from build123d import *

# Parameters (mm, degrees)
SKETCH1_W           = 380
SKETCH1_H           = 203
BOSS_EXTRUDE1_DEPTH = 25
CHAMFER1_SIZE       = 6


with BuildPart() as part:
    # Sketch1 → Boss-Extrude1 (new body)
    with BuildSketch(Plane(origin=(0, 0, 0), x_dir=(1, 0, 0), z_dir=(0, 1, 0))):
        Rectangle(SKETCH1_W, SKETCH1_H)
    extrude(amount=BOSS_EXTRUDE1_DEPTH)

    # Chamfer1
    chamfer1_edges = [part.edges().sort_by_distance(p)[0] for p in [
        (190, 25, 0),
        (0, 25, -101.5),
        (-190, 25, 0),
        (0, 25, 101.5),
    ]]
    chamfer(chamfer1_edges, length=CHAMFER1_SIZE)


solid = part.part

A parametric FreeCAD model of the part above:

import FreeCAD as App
import Part
import Sketcher


def edges_at(feature, points):
    """Names of the edges that pass closest to the given points."""
    edges = feature.Shape.Edges
    near = lambda p: min(range(len(edges)), key=lambda i: edges[i].distToShape(Part.Vertex(*p))[0])
    return sorted({f"Edge{near(p) + 1}" for p in points})

doc = App.newDocument("Part")
params = doc.addObject("Spreadsheet::Sheet", "Params")
for row, (alias, value) in enumerate([
    ("sketch1_width", "380 mm"),
    ("sketch1_height", "203 mm"),
    ("pad1_length", "25 mm"),
    ("chamfer_size", "6 mm"),
], start=1):
    params.set(f"A{row}", alias)
    params.set(f"B{row}", "=" + value)
    params.setAlias(f"B{row}", alias)

body = doc.addObject("PartDesign::Body", "Body")

# Sketch on XZ plane
sketch1 = body.newObject("Sketcher::SketchObject", "Sketch")
sketch1.AttachmentSupport = (doc.getObject("XZ_Plane"), [""])
sketch1.MapMode = "FlatFace"
sketch1.addGeometry([
    Part.LineSegment(App.Vector(-190, -102, 0), App.Vector(-190, 102, 0)),
    Part.LineSegment(App.Vector(-190, 102, 0), App.Vector(190, 102, 0)),
    Part.LineSegment(App.Vector(190, 102, 0), App.Vector(190, -102, 0)),
    Part.LineSegment(App.Vector(190, -102, 0), App.Vector(-190, -102, 0)),
], False)
sketch1.addConstraint([
    Sketcher.Constraint("Coincident", 0, 2, 1, 1),
    Sketcher.Constraint("Coincident", 1, 2, 2, 1),
    Sketcher.Constraint("Coincident", 2, 2, 3, 1),
    Sketcher.Constraint("Coincident", 3, 2, 0, 1),
    Sketcher.Constraint("Vertical", 0),
    Sketcher.Constraint("Horizontal", 1),
    Sketcher.Constraint("Vertical", 2),
    Sketcher.Constraint("Horizontal", 3),
    Sketcher.Constraint("Symmetric", 0, 2, 2, 2, -1, 1),
    Sketcher.Constraint("DistanceX", 1, 1, 1, 2, 380.0),
    Sketcher.Constraint("DistanceY", 0, 1, 0, 2, 203.0),
])
sketch1.setExpression("Constraints[9]", "Params.sketch1_width")
sketch1.setExpression("Constraints[10]", "Params.sketch1_height")
pad1 = body.newObject("PartDesign::Pad", "Pad")
pad1.Profile = sketch1
pad1.setExpression("Length", "Params.pad1_length")
pad1.Reversed = True
doc.recompute()

chamfer = body.newObject("PartDesign::Chamfer", "Chamfer")
chamfer.Base = (pad1, edges_at(pad1, [
    (190, 25, 0),
    (0, 25, -101.5),
    (-190, 25, 0),
    (0, 25, 101.5),
]))
chamfer.setExpression("Size", "Params.chamfer_size")

doc.recompute()
